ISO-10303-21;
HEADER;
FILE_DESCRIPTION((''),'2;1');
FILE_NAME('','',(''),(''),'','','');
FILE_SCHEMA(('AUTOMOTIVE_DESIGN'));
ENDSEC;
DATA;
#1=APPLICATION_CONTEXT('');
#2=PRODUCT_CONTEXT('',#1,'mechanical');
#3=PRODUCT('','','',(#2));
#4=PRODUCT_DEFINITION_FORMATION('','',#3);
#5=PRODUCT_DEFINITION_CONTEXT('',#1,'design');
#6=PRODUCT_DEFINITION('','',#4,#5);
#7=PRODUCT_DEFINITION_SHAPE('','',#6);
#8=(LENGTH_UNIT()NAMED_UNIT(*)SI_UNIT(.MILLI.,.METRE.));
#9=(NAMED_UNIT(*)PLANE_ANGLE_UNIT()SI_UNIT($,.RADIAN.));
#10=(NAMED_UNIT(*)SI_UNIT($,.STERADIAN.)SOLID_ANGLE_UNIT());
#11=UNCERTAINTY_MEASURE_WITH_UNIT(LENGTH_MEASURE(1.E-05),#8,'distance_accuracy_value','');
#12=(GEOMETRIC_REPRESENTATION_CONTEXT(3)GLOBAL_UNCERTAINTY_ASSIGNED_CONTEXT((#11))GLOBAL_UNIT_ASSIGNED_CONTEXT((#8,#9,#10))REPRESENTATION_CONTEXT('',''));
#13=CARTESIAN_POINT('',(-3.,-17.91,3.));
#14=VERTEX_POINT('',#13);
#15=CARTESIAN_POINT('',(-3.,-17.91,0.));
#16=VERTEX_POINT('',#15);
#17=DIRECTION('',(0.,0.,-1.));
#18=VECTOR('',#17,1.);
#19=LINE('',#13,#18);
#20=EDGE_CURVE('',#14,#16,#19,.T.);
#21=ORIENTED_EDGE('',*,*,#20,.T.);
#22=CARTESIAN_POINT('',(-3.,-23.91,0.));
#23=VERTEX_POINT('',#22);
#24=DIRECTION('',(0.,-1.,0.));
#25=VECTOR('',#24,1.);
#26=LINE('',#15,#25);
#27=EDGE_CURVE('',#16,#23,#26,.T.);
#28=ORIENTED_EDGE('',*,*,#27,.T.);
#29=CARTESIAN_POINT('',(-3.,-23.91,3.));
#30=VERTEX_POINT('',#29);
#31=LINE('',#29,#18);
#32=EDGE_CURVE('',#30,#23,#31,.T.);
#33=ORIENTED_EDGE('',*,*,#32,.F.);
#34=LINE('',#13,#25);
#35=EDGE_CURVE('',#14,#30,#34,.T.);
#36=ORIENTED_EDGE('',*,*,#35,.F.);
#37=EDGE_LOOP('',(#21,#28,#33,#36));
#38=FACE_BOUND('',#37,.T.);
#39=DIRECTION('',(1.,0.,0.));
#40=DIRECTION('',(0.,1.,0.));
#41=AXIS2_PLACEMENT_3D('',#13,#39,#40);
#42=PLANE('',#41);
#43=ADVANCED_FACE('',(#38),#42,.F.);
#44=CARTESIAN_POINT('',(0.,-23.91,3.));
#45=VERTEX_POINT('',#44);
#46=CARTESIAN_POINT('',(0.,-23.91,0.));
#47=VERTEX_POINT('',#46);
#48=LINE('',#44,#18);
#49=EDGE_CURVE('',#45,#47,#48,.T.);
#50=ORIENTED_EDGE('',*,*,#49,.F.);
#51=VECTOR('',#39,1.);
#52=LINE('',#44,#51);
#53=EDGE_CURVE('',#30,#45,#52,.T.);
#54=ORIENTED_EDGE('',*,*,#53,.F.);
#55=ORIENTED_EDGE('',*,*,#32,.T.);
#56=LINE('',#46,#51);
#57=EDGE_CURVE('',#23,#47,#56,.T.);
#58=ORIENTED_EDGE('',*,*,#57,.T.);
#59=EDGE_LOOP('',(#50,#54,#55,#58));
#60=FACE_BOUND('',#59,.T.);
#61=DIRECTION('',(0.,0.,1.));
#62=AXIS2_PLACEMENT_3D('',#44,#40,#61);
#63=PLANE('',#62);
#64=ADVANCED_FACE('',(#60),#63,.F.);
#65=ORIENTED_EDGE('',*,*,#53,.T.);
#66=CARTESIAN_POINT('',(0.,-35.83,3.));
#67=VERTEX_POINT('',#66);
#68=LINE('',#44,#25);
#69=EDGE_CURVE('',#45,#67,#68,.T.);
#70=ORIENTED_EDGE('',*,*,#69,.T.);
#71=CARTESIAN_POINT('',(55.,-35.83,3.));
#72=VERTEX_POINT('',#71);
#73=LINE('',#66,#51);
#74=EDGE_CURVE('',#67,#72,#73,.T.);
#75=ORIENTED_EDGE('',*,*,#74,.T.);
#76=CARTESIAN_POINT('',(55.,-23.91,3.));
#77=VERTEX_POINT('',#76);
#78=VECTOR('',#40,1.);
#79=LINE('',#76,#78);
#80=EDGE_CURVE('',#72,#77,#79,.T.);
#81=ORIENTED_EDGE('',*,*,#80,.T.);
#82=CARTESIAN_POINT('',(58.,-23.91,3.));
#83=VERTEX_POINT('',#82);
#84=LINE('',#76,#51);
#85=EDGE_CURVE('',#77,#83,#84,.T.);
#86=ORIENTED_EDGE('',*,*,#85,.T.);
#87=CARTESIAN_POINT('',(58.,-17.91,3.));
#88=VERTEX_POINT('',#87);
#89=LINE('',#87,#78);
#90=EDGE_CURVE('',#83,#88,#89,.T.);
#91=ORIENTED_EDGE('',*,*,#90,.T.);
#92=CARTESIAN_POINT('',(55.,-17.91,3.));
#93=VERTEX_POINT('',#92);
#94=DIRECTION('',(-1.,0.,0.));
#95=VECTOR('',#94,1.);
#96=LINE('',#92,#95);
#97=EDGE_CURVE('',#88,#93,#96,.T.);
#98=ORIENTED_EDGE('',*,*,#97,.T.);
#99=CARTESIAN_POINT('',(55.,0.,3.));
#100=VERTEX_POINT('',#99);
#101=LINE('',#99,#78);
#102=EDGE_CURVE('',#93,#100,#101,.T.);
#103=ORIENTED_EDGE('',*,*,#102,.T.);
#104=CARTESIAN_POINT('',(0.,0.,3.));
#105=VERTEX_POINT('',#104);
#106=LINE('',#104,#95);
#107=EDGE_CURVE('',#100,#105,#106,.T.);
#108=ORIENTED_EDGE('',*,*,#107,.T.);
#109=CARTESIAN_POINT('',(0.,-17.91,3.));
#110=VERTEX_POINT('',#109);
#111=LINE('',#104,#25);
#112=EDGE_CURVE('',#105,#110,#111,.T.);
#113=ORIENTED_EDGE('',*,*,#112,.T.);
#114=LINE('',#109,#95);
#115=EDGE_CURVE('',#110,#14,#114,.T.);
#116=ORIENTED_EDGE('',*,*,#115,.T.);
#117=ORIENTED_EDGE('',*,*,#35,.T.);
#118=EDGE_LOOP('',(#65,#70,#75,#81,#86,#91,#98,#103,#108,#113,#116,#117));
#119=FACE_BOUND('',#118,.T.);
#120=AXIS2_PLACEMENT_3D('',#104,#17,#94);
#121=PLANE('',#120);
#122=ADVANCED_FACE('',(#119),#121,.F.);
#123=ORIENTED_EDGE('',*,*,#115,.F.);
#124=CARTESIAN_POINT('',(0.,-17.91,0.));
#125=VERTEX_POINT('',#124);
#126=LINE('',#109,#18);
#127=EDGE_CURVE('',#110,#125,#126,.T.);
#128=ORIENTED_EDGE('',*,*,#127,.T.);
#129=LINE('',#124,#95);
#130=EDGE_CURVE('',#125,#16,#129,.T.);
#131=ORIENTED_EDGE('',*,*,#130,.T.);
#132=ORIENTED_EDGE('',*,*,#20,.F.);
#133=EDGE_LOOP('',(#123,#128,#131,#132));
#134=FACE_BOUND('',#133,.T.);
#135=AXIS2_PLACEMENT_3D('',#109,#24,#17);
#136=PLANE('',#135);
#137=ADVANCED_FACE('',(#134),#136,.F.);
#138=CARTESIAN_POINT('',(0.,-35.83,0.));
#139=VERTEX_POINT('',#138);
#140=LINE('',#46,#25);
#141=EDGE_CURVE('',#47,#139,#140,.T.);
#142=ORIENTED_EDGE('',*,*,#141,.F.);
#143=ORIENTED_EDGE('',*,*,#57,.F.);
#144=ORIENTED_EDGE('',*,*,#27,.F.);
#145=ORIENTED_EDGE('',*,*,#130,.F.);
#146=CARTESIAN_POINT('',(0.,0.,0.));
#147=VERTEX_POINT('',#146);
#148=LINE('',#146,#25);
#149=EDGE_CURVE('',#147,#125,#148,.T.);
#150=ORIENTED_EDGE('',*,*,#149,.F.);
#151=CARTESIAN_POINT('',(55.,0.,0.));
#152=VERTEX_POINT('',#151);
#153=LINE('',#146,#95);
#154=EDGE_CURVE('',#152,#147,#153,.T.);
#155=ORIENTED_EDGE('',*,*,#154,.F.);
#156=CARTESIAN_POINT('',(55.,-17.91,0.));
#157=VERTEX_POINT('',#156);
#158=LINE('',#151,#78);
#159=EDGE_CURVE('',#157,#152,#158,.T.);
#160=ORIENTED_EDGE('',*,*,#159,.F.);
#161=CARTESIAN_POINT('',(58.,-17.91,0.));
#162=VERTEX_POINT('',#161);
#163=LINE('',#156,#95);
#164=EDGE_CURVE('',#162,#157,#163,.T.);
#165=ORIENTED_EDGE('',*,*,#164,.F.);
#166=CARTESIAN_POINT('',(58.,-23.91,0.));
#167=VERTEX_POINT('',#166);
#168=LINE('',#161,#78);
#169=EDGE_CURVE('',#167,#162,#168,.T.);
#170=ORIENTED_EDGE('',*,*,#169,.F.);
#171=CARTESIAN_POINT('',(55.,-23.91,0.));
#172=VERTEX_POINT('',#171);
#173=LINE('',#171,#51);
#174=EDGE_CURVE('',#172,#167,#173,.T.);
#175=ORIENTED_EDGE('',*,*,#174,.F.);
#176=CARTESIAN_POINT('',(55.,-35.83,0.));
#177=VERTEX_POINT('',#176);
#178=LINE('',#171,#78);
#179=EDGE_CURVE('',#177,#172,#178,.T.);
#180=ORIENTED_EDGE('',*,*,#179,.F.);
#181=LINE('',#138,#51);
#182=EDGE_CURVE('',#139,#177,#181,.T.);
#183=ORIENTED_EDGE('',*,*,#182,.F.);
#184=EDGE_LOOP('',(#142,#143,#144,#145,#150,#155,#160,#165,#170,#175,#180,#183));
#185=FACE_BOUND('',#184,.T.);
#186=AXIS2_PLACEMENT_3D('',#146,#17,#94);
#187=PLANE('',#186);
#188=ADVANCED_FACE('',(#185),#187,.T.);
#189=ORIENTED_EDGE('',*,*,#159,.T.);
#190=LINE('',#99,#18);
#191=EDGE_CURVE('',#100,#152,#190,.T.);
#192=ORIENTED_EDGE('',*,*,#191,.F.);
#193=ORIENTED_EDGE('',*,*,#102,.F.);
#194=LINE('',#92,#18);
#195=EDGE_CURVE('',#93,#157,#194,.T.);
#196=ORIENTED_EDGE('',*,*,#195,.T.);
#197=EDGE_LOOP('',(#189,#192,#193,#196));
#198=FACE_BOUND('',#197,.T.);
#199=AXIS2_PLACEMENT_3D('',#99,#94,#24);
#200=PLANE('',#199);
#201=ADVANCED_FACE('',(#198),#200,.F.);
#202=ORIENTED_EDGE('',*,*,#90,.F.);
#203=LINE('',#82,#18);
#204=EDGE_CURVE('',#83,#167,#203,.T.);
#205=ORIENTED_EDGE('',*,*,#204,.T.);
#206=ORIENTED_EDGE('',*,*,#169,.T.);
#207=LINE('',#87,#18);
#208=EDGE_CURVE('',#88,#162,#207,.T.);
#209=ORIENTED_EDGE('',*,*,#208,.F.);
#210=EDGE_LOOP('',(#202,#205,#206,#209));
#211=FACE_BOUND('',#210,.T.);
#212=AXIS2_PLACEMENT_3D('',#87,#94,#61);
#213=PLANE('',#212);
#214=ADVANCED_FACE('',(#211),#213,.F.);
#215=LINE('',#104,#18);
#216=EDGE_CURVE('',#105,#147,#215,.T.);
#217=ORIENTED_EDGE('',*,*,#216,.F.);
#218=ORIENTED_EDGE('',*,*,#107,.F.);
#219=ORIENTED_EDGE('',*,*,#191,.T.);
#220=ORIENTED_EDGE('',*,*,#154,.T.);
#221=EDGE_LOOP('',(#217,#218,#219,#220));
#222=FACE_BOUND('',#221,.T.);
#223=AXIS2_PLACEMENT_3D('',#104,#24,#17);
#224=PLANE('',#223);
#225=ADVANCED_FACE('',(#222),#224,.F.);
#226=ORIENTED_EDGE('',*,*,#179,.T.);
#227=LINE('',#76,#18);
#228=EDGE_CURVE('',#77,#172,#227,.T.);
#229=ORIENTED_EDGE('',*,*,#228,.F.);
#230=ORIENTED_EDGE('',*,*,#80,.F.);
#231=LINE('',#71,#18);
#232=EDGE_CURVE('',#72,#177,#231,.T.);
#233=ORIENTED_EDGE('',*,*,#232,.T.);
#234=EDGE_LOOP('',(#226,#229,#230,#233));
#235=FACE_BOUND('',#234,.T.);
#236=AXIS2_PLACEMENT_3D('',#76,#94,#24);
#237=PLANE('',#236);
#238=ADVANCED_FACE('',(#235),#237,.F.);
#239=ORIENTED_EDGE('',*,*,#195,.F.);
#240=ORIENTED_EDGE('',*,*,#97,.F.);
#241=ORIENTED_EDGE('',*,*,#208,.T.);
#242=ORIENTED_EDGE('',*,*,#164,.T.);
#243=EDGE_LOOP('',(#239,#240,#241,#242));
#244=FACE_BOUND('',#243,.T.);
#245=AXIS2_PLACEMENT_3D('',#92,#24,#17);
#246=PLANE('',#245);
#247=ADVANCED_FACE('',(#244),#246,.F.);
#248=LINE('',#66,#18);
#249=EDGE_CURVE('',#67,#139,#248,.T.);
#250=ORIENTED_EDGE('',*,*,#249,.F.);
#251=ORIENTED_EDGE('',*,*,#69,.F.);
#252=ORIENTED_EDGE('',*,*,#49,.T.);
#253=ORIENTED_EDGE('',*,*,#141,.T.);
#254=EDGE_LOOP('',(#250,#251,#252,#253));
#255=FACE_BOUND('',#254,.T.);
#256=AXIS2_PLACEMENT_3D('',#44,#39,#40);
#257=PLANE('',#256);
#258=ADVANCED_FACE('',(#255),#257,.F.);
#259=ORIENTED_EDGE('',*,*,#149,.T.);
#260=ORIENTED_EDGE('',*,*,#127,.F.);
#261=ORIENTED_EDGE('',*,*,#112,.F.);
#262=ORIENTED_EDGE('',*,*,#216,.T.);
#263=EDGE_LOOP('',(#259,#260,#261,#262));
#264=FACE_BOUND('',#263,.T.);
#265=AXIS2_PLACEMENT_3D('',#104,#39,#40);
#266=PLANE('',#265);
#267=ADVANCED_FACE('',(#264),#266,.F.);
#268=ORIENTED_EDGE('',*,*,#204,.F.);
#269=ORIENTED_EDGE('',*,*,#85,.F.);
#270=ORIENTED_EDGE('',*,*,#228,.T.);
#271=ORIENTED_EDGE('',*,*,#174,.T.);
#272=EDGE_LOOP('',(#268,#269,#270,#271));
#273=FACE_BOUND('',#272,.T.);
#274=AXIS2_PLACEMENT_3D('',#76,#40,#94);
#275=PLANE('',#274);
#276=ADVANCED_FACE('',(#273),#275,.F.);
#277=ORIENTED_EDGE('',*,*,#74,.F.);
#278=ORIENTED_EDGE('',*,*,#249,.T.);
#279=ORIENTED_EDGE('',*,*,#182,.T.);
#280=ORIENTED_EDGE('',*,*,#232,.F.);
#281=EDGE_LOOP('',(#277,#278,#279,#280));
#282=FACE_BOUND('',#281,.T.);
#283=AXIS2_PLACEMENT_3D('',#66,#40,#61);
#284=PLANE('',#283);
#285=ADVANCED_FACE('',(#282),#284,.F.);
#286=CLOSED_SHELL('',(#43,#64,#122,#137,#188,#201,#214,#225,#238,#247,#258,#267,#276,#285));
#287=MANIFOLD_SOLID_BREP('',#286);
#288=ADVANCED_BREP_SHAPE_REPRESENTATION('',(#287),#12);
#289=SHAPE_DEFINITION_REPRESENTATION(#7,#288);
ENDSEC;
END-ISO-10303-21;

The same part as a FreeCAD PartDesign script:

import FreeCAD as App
import Part
import Sketcher
from FreeCAD import Vector

doc = App.newDocument("Part")
body = doc.addObject("PartDesign::Body", "Body")

# Sketch on XY plane
sketch1 = doc.addObject("Sketcher::SketchObject", "Sketch")
body.addObject(sketch1)
sketch1.AttachmentSupport = (doc.XY_Plane, [""])
sketch1.MapMode = "FlatFace"
sketch1.addGeometry([
    Part.LineSegment(Vector(55, -35.83, 0), Vector(55, -23.91, 0)),  # 0
    Part.LineSegment(Vector(55, -23.91, 0), Vector(58, -23.91, 0)),  # 1
    Part.LineSegment(Vector(58, -23.91, 0), Vector(58, -17.91, 0)),  # 2
    Part.LineSegment(Vector(58, -17.91, 0), Vector(55, -17.91, 0)),  # 3
    Part.LineSegment(Vector(55, -17.91, 0), Vector(55, 0, 0)),  # 4
    Part.LineSegment(Vector(55, 0, 0), Vector(0, 0, 0)),  # 5
    Part.LineSegment(Vector(0, 0, 0), Vector(0, -17.91, 0)),  # 6
    Part.LineSegment(Vector(0, -17.91, 0), Vector(-3, -17.91, 0)),  # 7
    Part.LineSegment(Vector(-3, -17.91, 0), Vector(-3, -23.91, 0)),  # 8
    Part.LineSegment(Vector(-3, -23.91, 0), Vector(0, -23.91, 0)),  # 9
    Part.LineSegment(Vector(0, -23.91, 0), Vector(0, -35.83, 0)),  # 10
    Part.LineSegment(Vector(0, -35.83, 0), Vector(55, -35.83, 0)),  # 11
], False)
sketch1.addConstraint([
    Sketcher.Constraint("Coincident", 0, 2, 1, 1),
    Sketcher.Constraint("Coincident", 1, 2, 2, 1),
    Sketcher.Constraint("Coincident", 2, 2, 3, 1),
    Sketcher.Constraint("Coincident", 3, 2, 4, 1),
    Sketcher.Constraint("Coincident", 4, 2, 5, 1),
    Sketcher.Constraint("Coincident", 5, 2, 6, 1),
    Sketcher.Constraint("Coincident", 6, 2, 7, 1),
    Sketcher.Constraint("Coincident", 7, 2, 8, 1),
    Sketcher.Constraint("Coincident", 8, 2, 9, 1),
    Sketcher.Constraint("Coincident", 9, 2, 10, 1),
    Sketcher.Constraint("Coincident", 10, 2, 11, 1),
    Sketcher.Constraint("Coincident", 11, 2, 0, 1),
    Sketcher.Constraint("Vertical", 0),
    Sketcher.Constraint("Horizontal", 1),
    Sketcher.Constraint("Vertical", 2),
    Sketcher.Constraint("Horizontal", 3),
    Sketcher.Constraint("Vertical", 4),
    Sketcher.Constraint("Horizontal", 5),
    Sketcher.Constraint("Vertical", 6),
    Sketcher.Constraint("Horizontal", 7),
    Sketcher.Constraint("Vertical", 8),
    Sketcher.Constraint("Horizontal", 9),
    Sketcher.Constraint("Vertical", 10),
    Sketcher.Constraint("Horizontal", 11),
    Sketcher.Constraint("Coincident", 5, 2, -1, 1),
    Sketcher.Constraint("PointOnObject", 9, 2, -2),
    Sketcher.Constraint("Horizontal", 3, 2, 6, 2),
    Sketcher.Constraint("Horizontal", 1, 2, 8, 2),
    Sketcher.Constraint("Vertical", 0, 2, 3, 2),
    Sketcher.Constraint("Equal", 3, 7),
    Sketcher.Constraint("DistanceX", 1, 1, 1, 2, 3.0),
    Sketcher.Constraint("DistanceX", 5, 2, 5, 1, 55.0),
    Sketcher.Constraint("DistanceY", 2, 1, 2, 2, 6.0),
    Sketcher.Constraint("DistanceY", 0, 1, 0, 2, 11.92),
    Sketcher.Constraint("DistanceY", 4, 1, 4, 2, 17.91),
])
pad1 = doc.addObject("PartDesign::Pad", "Pad")
body.addObject(pad1)
pad1.Profile = sketch1
pad1.Length = 3

doc.recompute()
